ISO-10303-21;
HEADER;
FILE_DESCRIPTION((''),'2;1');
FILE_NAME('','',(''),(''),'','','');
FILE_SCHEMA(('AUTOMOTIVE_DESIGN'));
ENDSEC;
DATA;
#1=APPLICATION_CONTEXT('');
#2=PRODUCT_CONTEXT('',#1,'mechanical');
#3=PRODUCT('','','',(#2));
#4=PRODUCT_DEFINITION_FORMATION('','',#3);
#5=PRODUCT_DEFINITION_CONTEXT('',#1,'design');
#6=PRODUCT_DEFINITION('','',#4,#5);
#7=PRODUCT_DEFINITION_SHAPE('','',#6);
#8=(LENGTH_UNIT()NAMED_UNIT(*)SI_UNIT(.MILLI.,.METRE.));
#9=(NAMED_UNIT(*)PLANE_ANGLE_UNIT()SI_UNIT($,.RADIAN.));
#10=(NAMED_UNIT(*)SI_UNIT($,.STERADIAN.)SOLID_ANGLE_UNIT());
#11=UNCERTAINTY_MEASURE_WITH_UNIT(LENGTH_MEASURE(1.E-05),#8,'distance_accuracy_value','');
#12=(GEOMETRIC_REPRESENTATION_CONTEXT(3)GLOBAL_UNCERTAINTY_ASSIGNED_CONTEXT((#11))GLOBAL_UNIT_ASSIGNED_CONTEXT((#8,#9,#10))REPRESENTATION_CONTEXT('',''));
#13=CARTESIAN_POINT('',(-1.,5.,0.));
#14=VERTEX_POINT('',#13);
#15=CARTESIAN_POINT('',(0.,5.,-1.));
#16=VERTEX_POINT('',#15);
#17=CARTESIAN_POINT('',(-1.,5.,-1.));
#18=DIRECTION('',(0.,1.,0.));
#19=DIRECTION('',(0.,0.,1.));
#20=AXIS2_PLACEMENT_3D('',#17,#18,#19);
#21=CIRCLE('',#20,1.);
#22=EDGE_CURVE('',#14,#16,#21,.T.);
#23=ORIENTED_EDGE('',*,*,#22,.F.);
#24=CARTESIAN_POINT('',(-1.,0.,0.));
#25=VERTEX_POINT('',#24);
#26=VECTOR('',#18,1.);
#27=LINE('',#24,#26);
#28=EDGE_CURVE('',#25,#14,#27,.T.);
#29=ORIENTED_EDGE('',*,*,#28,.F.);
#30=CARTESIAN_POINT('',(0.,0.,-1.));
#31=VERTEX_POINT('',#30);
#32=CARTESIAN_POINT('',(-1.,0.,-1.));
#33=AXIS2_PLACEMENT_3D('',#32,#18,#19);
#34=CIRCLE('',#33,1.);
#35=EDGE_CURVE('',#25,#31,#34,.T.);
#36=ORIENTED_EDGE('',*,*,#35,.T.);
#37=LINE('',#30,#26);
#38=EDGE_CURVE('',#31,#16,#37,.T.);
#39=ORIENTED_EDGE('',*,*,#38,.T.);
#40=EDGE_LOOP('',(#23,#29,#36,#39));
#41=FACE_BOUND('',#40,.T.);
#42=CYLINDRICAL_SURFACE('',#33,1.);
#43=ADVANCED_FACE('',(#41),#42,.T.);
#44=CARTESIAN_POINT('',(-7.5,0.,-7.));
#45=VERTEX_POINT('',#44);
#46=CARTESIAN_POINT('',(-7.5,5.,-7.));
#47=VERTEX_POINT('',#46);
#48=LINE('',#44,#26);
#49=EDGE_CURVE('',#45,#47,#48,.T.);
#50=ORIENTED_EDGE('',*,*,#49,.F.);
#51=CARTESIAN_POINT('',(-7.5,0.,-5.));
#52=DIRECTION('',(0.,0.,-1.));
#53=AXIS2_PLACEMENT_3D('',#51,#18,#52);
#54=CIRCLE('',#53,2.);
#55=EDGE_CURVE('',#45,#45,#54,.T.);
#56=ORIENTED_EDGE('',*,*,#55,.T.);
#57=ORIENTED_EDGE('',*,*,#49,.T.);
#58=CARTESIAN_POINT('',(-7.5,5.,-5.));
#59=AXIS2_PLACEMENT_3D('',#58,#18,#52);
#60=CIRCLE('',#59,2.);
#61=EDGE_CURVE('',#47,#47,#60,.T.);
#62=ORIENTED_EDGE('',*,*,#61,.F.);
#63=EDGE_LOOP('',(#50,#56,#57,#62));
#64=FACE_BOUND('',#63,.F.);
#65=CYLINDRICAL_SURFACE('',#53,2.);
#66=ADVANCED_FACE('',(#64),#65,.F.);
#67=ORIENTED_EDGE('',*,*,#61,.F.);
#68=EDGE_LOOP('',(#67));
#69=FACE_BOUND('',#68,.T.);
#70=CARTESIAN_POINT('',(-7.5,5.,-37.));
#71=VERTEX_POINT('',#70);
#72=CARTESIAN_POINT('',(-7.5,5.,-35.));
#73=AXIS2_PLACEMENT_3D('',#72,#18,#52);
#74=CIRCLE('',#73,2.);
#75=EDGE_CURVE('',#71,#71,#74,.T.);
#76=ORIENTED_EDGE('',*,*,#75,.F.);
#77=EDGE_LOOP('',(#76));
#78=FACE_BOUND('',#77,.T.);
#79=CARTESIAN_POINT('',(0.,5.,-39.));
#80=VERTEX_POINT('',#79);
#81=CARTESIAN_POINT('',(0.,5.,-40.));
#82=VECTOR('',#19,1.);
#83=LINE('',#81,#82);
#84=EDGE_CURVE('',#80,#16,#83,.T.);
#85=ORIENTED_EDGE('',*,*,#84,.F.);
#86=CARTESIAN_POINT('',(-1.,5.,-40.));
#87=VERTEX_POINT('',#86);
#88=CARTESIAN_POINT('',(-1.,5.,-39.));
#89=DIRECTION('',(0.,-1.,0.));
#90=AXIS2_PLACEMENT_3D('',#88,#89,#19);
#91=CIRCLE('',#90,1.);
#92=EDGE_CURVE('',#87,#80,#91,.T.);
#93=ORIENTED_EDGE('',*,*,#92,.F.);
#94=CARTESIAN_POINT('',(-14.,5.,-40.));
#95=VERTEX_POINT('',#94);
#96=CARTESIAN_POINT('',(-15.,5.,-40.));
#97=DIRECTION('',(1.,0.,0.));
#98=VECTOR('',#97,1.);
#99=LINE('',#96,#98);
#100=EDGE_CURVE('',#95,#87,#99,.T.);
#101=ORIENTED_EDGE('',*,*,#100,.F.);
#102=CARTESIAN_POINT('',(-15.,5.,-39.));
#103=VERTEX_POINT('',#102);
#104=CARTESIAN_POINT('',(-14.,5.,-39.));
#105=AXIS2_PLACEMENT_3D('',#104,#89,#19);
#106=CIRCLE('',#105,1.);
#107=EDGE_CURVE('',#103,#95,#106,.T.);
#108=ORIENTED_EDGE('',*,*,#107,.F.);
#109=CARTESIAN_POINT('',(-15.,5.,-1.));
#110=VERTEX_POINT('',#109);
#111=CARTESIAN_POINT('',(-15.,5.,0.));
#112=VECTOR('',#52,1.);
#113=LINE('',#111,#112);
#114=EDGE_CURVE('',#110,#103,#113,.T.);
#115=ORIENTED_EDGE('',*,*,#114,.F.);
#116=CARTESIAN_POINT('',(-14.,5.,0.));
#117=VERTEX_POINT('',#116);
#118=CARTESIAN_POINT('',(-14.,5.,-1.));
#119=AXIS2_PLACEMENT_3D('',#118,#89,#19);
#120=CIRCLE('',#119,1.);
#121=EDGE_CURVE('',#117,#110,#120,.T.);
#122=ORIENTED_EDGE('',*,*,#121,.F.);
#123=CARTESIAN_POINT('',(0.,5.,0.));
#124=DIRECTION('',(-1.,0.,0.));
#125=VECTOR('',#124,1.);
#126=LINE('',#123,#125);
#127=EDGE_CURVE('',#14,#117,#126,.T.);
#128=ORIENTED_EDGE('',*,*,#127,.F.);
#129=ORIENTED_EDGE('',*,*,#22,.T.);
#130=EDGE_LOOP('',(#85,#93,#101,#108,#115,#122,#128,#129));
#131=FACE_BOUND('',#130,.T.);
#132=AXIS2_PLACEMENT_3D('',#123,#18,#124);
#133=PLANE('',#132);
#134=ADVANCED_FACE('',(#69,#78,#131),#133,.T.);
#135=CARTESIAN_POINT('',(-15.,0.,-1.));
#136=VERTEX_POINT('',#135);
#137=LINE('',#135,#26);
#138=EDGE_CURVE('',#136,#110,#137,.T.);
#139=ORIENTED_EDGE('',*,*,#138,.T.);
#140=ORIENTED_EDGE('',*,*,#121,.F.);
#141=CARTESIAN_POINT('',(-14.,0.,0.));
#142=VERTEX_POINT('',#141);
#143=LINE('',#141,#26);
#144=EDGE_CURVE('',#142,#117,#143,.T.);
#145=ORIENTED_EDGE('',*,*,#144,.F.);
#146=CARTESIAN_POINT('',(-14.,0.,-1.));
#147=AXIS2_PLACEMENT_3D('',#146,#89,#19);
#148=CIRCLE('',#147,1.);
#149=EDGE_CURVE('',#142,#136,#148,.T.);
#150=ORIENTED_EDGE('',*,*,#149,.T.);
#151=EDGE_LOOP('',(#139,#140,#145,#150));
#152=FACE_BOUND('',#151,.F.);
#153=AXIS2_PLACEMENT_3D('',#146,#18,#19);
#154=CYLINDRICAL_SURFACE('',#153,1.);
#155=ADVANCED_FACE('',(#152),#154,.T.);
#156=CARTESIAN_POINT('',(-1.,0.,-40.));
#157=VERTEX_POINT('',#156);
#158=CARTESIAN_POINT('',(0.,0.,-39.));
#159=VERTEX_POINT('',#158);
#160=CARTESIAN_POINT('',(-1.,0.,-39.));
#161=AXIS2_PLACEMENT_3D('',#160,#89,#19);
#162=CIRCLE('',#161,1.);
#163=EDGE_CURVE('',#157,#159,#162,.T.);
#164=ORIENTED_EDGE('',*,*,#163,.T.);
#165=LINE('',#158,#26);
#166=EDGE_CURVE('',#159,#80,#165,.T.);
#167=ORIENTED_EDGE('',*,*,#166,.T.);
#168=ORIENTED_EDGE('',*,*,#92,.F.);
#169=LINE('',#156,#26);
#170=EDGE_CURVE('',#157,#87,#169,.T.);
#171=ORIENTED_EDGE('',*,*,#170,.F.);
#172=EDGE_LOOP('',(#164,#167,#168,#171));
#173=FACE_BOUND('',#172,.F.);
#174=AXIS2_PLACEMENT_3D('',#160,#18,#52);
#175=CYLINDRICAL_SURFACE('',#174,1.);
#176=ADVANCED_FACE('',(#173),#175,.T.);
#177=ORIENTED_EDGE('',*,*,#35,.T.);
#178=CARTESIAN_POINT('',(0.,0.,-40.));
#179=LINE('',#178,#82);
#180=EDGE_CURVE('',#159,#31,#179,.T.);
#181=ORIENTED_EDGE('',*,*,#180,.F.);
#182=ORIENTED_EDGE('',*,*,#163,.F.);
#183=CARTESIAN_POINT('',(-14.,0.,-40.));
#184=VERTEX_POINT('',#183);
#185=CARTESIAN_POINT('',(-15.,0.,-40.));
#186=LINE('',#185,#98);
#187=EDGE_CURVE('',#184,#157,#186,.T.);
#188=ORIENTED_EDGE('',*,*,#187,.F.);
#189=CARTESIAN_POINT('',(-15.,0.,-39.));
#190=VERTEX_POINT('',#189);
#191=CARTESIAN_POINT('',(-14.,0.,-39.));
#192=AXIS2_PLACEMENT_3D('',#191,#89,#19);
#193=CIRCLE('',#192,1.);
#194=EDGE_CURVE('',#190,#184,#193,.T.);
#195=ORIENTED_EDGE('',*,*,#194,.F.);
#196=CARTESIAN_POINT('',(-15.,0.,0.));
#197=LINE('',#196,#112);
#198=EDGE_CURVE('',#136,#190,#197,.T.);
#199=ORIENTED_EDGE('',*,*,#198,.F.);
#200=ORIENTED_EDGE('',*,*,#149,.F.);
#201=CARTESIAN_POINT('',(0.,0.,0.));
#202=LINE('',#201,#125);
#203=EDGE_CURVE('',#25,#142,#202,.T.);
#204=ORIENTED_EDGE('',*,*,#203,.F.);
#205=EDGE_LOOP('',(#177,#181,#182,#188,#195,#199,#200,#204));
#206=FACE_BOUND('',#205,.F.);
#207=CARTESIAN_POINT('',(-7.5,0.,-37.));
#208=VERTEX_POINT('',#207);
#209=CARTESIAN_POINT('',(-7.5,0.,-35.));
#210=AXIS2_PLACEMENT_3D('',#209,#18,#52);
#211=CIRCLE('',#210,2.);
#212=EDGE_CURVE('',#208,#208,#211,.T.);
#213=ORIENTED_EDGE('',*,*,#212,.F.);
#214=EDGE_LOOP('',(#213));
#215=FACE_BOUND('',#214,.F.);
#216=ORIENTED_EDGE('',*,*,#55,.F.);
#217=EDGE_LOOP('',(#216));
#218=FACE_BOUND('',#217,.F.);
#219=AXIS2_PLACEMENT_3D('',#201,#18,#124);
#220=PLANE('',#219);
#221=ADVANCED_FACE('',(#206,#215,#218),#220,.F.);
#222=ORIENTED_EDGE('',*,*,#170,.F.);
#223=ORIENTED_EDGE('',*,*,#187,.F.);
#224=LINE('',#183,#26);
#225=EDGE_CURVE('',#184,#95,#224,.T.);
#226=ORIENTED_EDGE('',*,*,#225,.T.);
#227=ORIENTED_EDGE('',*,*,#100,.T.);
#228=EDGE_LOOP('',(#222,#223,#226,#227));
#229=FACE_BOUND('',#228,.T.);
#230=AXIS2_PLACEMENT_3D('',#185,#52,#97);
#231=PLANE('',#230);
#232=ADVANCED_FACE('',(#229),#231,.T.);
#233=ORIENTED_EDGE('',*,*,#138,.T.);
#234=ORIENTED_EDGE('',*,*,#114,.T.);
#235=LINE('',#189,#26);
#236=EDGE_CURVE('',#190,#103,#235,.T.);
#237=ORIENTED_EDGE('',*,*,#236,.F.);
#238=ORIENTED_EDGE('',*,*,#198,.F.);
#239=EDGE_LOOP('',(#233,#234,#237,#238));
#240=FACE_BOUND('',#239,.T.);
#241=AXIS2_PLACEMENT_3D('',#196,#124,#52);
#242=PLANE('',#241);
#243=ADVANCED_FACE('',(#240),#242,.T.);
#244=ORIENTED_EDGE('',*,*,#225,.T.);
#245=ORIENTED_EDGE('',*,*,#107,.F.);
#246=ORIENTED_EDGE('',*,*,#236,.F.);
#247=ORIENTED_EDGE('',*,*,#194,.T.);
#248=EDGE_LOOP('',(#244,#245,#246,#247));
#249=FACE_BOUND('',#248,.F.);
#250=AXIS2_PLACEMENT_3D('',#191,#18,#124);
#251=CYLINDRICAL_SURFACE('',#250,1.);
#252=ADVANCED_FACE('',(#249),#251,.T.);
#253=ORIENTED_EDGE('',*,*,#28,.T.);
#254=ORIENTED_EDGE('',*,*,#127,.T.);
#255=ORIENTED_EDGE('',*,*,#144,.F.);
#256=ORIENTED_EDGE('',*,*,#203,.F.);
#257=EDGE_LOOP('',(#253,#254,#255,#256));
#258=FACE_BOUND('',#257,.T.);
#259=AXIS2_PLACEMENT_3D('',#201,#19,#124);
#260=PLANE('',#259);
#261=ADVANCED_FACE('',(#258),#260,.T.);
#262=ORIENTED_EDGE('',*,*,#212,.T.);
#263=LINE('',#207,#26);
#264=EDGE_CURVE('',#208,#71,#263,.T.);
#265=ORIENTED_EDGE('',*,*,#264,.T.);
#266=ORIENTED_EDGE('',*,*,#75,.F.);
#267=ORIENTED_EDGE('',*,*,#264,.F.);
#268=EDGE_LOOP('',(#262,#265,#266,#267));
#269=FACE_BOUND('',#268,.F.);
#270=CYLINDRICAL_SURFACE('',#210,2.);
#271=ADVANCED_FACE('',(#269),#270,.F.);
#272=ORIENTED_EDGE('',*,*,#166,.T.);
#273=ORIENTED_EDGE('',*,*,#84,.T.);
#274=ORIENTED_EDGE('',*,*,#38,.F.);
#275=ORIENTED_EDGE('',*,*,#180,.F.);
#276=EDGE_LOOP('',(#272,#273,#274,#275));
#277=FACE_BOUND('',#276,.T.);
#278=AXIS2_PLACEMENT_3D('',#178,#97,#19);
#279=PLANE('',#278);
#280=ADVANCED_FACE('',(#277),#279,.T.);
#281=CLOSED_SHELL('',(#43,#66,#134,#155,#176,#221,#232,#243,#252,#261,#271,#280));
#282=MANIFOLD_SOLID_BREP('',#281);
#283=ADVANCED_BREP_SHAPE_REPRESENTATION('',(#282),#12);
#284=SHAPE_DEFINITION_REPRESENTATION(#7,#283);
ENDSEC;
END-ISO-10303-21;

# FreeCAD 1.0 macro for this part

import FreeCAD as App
import Part
import Sketcher

V = App.Vector


def edges_at(feature, points):
    """Names of the edges that pass closest to the given points."""
    edges = feature.Shape.Edges
    near = lambda p: min(range(len(edges)), key=lambda i: edges[i].distToShape(Part.Vertex(*p))[0])
    return sorted({f"Edge{near(p) + 1}" for p in points})

doc = App.newDocument("Part")
params = doc.addObject("Spreadsheet::Sheet", "Params")
for row, (alias, value) in enumerate([
    ("sketch1_width", "15 mm"),
    ("sketch1_height", "40 mm"),
    ("pad1_length", "5 mm"),
    ("fillet_radius", "1 mm"),
    ("sketch2_diameter", "4 mm"),
    ("hole_diameter", "4 mm"),
], start=1):
    params.set(f"A{row}", alias)
    params.set(f"B{row}", "=" + value)
    params.setAlias(f"B{row}", alias)

body = doc.addObject("PartDesign::Body", "Body")

# Sketch on XZ plane
sketch1 = body.newObject("Sketcher::SketchObject", "Sketch")
sketch1.AttachmentSupport = (doc.getObject("XZ_Plane"), [""])
sketch1.MapMode = "FlatFace"
sketch1.addGeometry([
    Part.LineSegment(V(-15, 0, 0), V(0, 0, 0)),
    Part.LineSegment(V(0, 0, 0), V(0, -40, 0)),
    Part.LineSegment(V(0, -40, 0), V(-15, -40, 0)),
    Part.LineSegment(V(-15, -40, 0), V(-15, 0, 0)),
], False)
sketch1.addConstraint([
    Sketcher.Constraint("Coincident", 0, 2, 1, 1),
    Sketcher.Constraint("Coincident", 1, 2, 2, 1),
    Sketcher.Constraint("Coincident", 2, 2, 3, 1),
    Sketcher.Constraint("Coincident", 3, 2, 0, 1),
    Sketcher.Constraint("Horizontal", 0),
    Sketcher.Constraint("Vertical", 1),
    Sketcher.Constraint("Horizontal", 2),
    Sketcher.Constraint("Vertical", 3),
    Sketcher.Constraint("Coincident", 0, 2, -1, 1),
    Sketcher.Constraint("DistanceX", 0, 1, 0, 2, 15.0),
    Sketcher.Constraint("DistanceY", 1, 2, 1, 1, 40.0),
])
sketch1.setExpression("Constraints[9]", "Params.sketch1_width")
sketch1.setExpression("Constraints[10]", "Params.sketch1_height")
pad1 = body.newObject("PartDesign::Pad", "Pad")
pad1.Profile = sketch1
pad1.setExpression("Length", "Params.pad1_length")
pad1.Reversed = True
doc.recompute()

fillet = body.newObject("PartDesign::Fillet", "Fillet")
fillet.Base = (pad1, edges_at(pad1, [
    (-15, 2.5, 0),
    (0, 2.5, 0),
    (0, 2.5, -40),
    (-15, 2.5, -40),
]))
fillet.setExpression("Radius", "Params.fillet_radius")

# Sketch on XZ plane
sketch2 = body.newObject("Sketcher::SketchObject", "Sketch001")
sketch2.AttachmentSupport = (doc.getObject("XZ_Plane"), [""])
sketch2.MapMode = "FlatFace"
sketch2.addGeometry([
    Part.Circle(V(-7.5, -5, 0), V(0, 0, 1), 2),
    Part.Circle(V(-7.5, -35, 0), V(0, 0, 1), 2),
], False)
sketch2.addConstraint([
    Sketcher.Constraint("Equal", 0, 1),
    Sketcher.Constraint("Vertical", 0, 3, 1, 3),
    Sketcher.Constraint("Diameter", 0, 4.0),
    Sketcher.Constraint("DistanceY", 0, 3, -1, 1, 5.0),
    Sketcher.Constraint("DistanceY", 1, 3, -1, 1, 35.0),
    Sketcher.Constraint("DistanceX", 0, 3, -1, 1, 7.5),
])
sketch2.setExpression("Constraints[2]", "Params.sketch2_diameter")
doc.recompute()
hole = body.newObject("PartDesign::Hole", "Hole")
hole.Profile = sketch2
hole.ThreadType = "None"
hole.setExpression("Diameter", "Params.hole_diameter")
hole.DepthType = "ThroughAll"

doc.recompute()
